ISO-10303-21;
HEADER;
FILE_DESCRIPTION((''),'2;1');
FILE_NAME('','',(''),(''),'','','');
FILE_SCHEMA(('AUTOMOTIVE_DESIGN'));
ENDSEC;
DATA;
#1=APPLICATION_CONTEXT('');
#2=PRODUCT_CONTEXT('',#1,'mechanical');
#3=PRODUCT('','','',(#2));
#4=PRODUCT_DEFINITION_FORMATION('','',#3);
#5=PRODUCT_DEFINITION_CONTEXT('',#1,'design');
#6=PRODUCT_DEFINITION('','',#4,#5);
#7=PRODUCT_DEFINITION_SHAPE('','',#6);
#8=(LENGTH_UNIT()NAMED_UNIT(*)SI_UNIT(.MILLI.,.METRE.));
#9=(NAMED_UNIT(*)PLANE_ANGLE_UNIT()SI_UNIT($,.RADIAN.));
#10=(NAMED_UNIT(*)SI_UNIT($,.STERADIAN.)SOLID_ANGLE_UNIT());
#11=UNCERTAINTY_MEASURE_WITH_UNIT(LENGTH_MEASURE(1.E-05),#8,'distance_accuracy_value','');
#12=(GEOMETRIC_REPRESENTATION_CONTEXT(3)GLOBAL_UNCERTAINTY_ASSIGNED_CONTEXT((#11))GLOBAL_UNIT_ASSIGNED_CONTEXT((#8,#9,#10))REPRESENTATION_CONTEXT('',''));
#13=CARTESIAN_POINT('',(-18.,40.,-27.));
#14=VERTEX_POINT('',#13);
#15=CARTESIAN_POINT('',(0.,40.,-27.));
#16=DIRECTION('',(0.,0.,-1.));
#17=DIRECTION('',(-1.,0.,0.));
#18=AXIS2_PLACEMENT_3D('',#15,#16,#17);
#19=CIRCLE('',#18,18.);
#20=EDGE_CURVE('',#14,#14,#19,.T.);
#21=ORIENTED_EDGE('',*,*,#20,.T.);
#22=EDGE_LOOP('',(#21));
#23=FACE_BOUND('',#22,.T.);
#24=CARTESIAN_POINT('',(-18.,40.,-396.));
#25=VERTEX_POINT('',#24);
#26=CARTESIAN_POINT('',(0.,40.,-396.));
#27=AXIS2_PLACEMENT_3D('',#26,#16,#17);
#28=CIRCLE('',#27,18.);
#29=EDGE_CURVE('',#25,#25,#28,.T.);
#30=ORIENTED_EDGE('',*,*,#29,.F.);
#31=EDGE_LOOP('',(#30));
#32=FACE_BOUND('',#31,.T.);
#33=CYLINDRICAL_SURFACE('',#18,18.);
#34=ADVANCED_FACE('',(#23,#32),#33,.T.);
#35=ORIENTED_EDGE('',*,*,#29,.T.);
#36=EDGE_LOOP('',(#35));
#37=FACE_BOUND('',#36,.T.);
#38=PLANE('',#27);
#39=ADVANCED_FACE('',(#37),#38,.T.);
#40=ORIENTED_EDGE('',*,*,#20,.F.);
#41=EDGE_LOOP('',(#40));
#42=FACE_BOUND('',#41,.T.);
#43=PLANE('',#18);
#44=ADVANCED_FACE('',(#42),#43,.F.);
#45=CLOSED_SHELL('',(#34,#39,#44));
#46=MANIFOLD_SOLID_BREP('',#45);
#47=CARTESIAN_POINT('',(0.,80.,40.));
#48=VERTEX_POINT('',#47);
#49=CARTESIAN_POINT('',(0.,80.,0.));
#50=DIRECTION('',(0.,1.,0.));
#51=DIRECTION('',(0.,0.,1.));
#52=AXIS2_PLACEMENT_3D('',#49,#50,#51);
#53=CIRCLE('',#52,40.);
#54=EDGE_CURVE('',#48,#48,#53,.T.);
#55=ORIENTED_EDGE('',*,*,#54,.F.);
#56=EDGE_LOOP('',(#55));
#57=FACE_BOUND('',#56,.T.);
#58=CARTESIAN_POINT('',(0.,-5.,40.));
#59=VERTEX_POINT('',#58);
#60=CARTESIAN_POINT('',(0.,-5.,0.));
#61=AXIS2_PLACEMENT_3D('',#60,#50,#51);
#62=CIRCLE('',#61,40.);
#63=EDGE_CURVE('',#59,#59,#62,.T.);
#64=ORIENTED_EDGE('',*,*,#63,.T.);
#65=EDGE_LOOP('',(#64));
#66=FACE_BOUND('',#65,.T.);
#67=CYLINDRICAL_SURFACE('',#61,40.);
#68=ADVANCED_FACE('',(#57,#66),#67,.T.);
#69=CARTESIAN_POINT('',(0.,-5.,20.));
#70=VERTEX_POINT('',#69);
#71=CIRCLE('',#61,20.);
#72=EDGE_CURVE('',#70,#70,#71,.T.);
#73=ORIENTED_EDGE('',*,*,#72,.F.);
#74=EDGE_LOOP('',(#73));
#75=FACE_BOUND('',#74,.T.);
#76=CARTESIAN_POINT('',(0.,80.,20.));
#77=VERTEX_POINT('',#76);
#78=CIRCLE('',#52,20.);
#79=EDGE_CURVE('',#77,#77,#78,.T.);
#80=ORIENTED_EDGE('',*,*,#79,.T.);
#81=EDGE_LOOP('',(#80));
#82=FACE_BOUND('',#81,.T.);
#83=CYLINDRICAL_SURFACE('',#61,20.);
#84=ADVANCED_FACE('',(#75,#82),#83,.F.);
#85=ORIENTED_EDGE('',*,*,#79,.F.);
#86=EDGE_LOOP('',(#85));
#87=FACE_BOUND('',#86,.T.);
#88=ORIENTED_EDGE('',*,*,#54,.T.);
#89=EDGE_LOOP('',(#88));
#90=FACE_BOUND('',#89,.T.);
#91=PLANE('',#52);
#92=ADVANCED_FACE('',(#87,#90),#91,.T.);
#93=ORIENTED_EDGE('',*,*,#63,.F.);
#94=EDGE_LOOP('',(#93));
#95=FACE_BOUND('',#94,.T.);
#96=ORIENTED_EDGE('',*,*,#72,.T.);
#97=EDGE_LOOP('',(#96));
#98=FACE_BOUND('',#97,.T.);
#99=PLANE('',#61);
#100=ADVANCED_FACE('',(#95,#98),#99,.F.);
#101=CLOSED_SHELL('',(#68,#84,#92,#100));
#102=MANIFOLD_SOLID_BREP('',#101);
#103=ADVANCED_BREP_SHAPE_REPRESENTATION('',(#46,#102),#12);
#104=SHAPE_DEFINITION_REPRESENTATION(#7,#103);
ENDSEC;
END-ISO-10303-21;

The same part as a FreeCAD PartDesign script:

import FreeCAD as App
import Part
import Sketcher

V = App.Vector

doc = App.newDocument("Part")
body = doc.addObject("PartDesign::Body", "Body")

# Sketch on XZ plane
sketch1 = doc.addObject("Sketcher::SketchObject", "Sketch")
body.addObject(sketch1)
sketch1.AttachmentSupport = (doc.XZ_Plane, [""])
sketch1.MapMode = "FlatFace"
sketch1.addGeometry([
    Part.Circle(V(0, 0, 0), V(0, 0, 1), 40),
    Part.Circle(V(0, 0, 0), V(0, 0, 1), 20),
], False)
sketch1.addConstraint([
    Sketcher.Constraint("Coincident", 0, 3, -1, 1),
    Sketcher.Constraint("Coincident", 1, 3, -1, 1),
    Sketcher.Constraint("Diameter", 0, 80.0),
    Sketcher.Constraint("Diameter", 1, 40.0),
])
pad1 = doc.addObject("PartDesign::Pad", "Pad")
body.addObject(pad1)
pad1.Profile = sketch1
pad1.Type = "TwoLengths"
pad1.Length = 80
pad1.Length2 = 5
pad1.Reversed = True
body2 = doc.addObject("PartDesign::Body", "Body001")

# Sketch on XY plane
sketch2 = doc.addObject("Sketcher::SketchObject", "Sketch001")
body2.addObject(sketch2)
sketch2.AttachmentSupport = (doc.getObject("XY_Plane001"), [""])
sketch2.MapMode = "FlatFace"
sketch2.AttachmentOffset = App.Placement(V(0, 0, -40), App.Rotation())
sketch2.addGeometry(Part.Circle(V(0, 40, 0), V(0, 0, 1), 18), False)
sketch2.addConstraint([
    Sketcher.Constraint("PointOnObject", 0, 3, -2),
    Sketcher.Constraint("Diameter", 0, 36.0),
    Sketcher.Constraint("DistanceY", -1, 1, 0, 3, 40.0),
])
pad2 = doc.addObject("PartDesign::Pad", "Pad001")
body2.addObject(pad2)
pad2.Profile = sketch2
pad2.Type = "TwoLengths"
pad2.Length = 356
pad2.Length2 = 13
pad2.Reversed = True

doc.recompute()
